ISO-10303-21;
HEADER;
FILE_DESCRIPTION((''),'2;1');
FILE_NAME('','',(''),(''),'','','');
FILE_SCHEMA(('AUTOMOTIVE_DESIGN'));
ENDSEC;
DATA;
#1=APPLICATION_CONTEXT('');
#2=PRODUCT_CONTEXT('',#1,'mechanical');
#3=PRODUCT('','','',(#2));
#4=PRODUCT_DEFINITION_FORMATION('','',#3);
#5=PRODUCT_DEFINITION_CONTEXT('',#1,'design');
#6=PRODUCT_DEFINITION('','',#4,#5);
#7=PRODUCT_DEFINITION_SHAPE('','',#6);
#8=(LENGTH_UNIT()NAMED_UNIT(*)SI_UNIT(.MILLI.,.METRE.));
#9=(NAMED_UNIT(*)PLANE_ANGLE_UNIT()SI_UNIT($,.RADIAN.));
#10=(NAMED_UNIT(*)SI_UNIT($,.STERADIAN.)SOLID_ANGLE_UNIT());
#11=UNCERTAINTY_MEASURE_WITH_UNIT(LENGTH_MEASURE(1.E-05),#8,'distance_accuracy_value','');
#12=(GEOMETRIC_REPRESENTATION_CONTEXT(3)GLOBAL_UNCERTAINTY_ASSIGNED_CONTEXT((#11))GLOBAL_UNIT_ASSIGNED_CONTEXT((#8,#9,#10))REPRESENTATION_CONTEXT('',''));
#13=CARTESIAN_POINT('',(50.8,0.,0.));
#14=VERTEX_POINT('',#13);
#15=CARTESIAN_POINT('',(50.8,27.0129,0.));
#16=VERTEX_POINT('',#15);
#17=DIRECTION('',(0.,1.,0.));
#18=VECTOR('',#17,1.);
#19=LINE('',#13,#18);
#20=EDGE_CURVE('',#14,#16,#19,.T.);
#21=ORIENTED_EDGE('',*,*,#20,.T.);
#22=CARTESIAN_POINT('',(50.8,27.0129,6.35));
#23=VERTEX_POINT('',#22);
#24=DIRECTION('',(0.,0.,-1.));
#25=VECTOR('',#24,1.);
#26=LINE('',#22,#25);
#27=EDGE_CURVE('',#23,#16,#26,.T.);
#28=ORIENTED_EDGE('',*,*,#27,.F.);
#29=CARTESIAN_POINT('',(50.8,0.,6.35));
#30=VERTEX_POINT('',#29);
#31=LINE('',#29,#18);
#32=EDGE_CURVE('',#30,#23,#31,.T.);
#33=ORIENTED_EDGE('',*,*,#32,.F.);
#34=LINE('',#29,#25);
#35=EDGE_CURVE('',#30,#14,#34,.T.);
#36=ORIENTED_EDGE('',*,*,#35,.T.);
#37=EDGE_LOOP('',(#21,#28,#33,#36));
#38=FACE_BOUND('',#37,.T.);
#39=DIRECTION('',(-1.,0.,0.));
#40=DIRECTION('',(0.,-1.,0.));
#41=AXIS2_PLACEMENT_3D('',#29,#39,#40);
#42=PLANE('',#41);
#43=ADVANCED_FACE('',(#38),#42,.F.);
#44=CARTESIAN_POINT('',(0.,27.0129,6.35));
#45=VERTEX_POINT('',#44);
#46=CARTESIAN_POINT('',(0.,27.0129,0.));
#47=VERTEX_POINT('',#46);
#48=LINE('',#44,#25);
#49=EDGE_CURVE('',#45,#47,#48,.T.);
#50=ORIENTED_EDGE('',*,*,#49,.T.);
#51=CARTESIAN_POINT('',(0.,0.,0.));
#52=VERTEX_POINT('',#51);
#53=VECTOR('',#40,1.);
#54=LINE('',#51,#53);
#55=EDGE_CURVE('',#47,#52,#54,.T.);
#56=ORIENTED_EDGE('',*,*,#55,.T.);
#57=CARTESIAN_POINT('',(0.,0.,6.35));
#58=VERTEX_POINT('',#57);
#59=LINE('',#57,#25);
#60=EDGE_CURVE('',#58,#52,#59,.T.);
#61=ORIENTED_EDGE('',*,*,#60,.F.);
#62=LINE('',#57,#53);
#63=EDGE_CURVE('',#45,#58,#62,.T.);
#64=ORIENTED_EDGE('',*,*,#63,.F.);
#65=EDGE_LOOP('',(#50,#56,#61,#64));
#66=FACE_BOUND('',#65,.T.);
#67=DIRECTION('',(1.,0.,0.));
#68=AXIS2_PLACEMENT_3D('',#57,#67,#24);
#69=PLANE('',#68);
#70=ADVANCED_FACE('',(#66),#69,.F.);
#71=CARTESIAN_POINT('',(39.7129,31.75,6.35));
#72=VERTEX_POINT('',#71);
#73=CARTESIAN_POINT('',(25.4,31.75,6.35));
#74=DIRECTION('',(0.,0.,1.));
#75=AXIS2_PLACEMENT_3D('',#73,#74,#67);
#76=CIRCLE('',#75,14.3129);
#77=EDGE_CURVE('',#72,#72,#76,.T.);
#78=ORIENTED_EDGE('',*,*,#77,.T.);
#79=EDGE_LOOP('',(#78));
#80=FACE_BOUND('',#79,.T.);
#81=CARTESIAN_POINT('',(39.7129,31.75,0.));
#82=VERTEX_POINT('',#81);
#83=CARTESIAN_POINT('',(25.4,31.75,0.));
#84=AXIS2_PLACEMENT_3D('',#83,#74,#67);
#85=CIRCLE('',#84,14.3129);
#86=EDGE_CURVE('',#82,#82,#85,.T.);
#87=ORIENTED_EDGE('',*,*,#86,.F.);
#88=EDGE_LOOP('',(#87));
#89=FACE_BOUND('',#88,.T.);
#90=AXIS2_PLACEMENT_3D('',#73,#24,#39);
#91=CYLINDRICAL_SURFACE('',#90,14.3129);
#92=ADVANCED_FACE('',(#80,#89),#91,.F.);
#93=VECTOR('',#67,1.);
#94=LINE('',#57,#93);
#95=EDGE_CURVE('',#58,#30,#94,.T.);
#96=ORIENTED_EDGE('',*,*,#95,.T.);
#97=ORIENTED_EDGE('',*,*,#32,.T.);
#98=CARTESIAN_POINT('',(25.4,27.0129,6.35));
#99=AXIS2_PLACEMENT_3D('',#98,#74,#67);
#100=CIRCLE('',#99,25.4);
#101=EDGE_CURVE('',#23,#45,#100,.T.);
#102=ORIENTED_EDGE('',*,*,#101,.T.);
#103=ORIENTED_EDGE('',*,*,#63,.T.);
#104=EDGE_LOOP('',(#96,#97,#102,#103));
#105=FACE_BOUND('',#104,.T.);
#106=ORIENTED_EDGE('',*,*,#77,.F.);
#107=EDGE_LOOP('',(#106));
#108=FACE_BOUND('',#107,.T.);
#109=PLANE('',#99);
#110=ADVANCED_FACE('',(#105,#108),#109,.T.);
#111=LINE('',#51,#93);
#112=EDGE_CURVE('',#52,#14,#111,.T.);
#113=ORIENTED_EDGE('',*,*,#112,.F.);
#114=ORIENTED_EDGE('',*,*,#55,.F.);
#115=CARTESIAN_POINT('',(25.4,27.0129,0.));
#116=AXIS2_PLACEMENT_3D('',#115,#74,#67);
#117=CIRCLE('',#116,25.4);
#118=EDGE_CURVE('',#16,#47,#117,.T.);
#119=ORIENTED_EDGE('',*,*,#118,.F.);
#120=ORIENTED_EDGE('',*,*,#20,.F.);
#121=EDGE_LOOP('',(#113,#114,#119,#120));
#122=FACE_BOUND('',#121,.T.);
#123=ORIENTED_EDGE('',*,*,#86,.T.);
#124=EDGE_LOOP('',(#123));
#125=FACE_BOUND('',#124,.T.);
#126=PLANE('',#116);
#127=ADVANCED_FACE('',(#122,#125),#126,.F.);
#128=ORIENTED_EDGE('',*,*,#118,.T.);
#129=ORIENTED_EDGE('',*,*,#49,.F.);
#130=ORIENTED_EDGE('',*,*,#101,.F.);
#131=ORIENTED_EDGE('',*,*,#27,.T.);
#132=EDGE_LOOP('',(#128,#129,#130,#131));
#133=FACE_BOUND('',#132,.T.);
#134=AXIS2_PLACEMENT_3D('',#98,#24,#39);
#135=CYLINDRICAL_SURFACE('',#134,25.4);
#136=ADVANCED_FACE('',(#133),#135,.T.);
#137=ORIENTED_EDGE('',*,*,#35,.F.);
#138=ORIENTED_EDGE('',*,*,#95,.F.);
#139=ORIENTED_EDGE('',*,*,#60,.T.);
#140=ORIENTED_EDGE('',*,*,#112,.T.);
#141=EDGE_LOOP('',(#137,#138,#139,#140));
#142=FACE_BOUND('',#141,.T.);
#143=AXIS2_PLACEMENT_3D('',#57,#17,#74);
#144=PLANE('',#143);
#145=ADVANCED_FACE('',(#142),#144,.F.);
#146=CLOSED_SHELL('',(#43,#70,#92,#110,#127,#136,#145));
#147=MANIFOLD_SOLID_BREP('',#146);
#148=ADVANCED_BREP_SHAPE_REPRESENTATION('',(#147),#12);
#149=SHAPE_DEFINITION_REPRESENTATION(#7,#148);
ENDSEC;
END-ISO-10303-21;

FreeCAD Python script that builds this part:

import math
import FreeCAD as App
import Part
import Sketcher
from FreeCAD import Vector
Q = App.Units.Quantity

doc = App.newDocument("Part")
body = doc.addObject("PartDesign::Body", "Body")

# Sketch on XY plane
sketch1 = body.newObject("Sketcher::SketchObject", "Sketch")
sketch1.AttachmentSupport = (doc.getObject("XY_Plane"), [""])
sketch1.MapMode = "FlatFace"
sketch1.addGeometry([
    Part.LineSegment(Vector(0, 0, 0), Vector(50.8, 0, 0)),  # 0
    Part.LineSegment(Vector(50.8, 0, 0), Vector(50.8, 27.0129, 0)),  # 1
    Part.ArcOfCircle(Part.Circle(Vector(25.4, 27.0129, 0), Vector(0, 0, 1), 25.4), math.radians(0), math.radians(180)),  # 2
    Part.LineSegment(Vector(0, 27.0129, 0), Vector(0, 0, 0)),  # 3
    Part.Circle(Vector(25.4, 31.75, 0), Vector(0, 0, 1), 14.3129),  # 4
], False)
sketch1.addConstraint([
    Sketcher.Constraint("Coincident", 0, 2, 1, 1),
    Sketcher.Constraint("Tangent", 1, 2, 2, 1),
    Sketcher.Constraint("Tangent", 2, 2, 3, 1),
    Sketcher.Constraint("Coincident", 3, 2, 0, 1),
    Sketcher.Constraint("Horizontal", 0),
    Sketcher.Constraint("Vertical", 1),
    Sketcher.Constraint("Vertical", 3),
    Sketcher.Constraint("Coincident", 3, 2, -1, 1),
    Sketcher.Constraint("Vertical", 2, 3, 4, 3),
    Sketcher.Constraint("Radius", 2, Q("1 in")),
    Sketcher.Constraint("Diameter", 4, Q("1.127 in")),
    Sketcher.Constraint("DistanceY", -1, 1, 4, 3, Q("1.25 in")),
    Sketcher.Constraint("DistanceY", 1, 1, 1, 2, Q("1.0635 in")),
])
pad1 = body.newObject("PartDesign::Pad", "Pad")
pad1.Profile = sketch1
pad1.Length = Q("0.25 in")

doc.recompute()
